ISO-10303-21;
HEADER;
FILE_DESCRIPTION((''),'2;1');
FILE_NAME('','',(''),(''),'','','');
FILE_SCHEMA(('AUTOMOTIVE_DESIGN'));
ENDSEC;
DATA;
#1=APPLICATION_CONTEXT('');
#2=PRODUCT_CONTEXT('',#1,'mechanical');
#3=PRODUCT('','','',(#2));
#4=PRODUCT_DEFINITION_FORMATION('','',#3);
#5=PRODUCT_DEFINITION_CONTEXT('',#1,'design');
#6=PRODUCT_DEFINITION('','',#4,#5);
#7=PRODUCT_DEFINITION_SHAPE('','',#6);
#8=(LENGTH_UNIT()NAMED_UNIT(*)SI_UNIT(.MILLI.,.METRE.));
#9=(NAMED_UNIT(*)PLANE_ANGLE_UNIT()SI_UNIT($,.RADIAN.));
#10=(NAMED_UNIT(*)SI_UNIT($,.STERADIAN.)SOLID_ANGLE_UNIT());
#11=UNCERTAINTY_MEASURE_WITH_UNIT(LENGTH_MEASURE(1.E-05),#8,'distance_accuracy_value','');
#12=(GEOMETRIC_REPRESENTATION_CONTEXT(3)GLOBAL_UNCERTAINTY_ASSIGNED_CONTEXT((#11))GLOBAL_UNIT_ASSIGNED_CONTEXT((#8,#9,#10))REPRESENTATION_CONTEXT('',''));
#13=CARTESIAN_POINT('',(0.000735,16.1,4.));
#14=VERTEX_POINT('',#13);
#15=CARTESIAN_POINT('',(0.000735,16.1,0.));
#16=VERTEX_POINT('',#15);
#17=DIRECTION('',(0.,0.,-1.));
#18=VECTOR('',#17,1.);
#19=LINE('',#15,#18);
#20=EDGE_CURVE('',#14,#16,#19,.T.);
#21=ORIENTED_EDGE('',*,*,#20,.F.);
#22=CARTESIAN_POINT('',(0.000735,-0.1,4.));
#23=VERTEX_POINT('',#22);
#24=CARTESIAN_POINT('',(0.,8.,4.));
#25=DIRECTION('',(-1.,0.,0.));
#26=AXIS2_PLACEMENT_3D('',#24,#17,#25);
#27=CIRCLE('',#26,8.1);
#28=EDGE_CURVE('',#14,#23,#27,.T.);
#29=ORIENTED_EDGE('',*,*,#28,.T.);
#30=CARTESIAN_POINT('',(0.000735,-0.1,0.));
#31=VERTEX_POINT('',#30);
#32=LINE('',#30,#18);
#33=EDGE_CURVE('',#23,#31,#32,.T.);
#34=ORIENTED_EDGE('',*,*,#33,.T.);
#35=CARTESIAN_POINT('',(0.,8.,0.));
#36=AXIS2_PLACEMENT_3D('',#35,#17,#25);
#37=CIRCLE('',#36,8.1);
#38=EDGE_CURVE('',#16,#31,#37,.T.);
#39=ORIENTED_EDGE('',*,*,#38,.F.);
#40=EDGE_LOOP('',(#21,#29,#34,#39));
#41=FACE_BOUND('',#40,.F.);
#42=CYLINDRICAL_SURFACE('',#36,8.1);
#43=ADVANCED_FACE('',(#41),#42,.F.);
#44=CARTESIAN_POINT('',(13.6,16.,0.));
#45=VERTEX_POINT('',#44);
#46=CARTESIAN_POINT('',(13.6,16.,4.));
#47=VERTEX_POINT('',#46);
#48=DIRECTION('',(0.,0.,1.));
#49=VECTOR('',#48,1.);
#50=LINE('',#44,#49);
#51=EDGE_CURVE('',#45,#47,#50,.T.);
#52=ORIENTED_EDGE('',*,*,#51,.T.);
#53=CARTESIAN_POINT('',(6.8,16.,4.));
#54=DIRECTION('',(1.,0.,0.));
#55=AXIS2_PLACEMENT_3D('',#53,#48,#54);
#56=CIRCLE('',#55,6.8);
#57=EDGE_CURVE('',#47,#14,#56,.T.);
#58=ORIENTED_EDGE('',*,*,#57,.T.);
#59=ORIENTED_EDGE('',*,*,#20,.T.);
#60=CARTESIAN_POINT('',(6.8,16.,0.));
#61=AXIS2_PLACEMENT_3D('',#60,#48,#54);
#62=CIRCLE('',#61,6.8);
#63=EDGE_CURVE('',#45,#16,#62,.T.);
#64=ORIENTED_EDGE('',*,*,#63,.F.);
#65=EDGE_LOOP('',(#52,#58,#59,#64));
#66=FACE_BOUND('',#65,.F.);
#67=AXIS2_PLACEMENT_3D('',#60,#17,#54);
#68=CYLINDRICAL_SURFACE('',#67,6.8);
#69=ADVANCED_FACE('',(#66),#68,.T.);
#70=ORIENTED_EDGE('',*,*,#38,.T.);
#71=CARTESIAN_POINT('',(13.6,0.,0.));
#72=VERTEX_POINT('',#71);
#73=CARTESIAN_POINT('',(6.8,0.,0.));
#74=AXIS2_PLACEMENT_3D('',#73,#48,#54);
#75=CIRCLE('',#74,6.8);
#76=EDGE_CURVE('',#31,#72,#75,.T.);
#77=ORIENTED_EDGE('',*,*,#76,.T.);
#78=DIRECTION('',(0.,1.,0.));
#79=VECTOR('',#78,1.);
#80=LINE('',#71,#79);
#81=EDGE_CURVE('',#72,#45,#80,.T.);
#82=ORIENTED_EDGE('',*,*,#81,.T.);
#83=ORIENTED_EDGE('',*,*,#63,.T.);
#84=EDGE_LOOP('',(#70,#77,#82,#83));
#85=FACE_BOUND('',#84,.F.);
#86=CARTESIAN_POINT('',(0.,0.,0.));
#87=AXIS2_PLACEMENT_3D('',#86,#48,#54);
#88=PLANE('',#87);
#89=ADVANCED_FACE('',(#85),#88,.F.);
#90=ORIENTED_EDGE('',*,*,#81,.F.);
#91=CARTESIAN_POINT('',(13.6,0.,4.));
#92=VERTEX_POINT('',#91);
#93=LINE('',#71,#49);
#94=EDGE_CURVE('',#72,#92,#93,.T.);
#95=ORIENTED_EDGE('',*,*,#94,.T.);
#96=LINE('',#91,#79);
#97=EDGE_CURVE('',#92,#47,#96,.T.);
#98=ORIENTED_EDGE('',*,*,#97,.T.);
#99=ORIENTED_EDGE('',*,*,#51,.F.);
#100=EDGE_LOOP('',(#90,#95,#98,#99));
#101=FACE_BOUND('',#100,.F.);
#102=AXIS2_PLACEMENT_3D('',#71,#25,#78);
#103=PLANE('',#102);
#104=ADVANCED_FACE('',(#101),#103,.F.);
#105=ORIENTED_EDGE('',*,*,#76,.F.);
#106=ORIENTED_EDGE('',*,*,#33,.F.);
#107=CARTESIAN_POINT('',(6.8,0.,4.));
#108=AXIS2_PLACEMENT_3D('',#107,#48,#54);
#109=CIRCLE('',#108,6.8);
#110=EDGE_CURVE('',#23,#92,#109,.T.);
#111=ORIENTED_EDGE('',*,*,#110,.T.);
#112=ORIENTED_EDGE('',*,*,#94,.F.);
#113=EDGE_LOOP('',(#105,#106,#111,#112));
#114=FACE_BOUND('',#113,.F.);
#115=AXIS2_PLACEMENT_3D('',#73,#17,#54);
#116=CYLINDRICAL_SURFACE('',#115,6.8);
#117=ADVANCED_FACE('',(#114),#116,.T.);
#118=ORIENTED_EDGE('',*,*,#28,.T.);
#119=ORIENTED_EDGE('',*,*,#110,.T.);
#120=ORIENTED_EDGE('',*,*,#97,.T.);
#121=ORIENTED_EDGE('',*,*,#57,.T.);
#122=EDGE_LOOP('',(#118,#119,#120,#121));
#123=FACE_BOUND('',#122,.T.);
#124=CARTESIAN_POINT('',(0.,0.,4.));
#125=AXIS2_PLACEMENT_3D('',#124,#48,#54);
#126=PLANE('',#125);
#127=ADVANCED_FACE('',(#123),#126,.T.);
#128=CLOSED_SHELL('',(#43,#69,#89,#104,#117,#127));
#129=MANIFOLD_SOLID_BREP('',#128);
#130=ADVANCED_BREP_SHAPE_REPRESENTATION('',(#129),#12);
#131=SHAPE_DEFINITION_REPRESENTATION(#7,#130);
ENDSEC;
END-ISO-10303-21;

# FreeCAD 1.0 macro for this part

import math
import FreeCAD as App
import Part
import Sketcher

V = App.Vector
Q = App.Units.Quantity

doc = App.newDocument("Part")
params = doc.addObject("Spreadsheet::Sheet", "Params")
for row, (alias, value) in enumerate([
    ("sketch1_radius", "6.8 mm"),
    ("sketch1_height", "16 mm"),
    ("pad1_length", "4 mm"),
    ("sketch2_diameter", "16.2 mm"),
], start=1):
    params.set(f"A{row}", alias)
    params.set(f"B{row}", "=" + value)
    params.setAlias(f"B{row}", alias)

body = doc.addObject("PartDesign::Body", "Body")

# Sketch on XY plane
sketch1 = body.newObject("Sketcher::SketchObject", "Sketch")
sketch1.AttachmentSupport = (doc.getObject("XY_Plane"), [""])
sketch1.MapMode = "FlatFace"
sketch1.addGeometry([
    Part.LineSegment(V(0, 16, 0), V(0, 0, 0)),
    Part.ArcOfCircle(Part.Circle(V(7, 0, 0), V(0, 0, 1), 7), math.radians(180), math.radians(360)),
    Part.LineSegment(V(14, 0, 0), V(14, 16, 0)),
    Part.ArcOfCircle(Part.Circle(V(7, 16, 0), V(0, 0, 1), 7), math.radians(0), math.radians(180)),
], False)
sketch1.addConstraint([
    Sketcher.Constraint("Tangent", 0, 2, 1, 1),
    Sketcher.Constraint("Tangent", 1, 2, 2, 1),
    Sketcher.Constraint("Tangent", 2, 2, 3, 1),
    Sketcher.Constraint("Tangent", 3, 2, 0, 1),
    Sketcher.Constraint("Vertical", 0),
    Sketcher.Constraint("Vertical", 2),
    Sketcher.Constraint("Coincident", 0, 2, -1, 1),
    Sketcher.Constraint("Radius", 1, Q("6.8 mm")),
    Sketcher.Constraint("DistanceY", 0, 2, 0, 1, Q("16 mm")),
])
sketch1.setExpression("Constraints[7]", "Params.sketch1_radius")
sketch1.setExpression("Constraints[8]", "Params.sketch1_height")
pad1 = body.newObject("PartDesign::Pad", "Pad")
pad1.Profile = sketch1
pad1.setExpression("Length", "Params.pad1_length")

# Sketch on XY plane
sketch2 = body.newObject("Sketcher::SketchObject", "Sketch001")
sketch2.AttachmentSupport = (doc.getObject("XY_Plane"), [""])
sketch2.MapMode = "FlatFace"
sketch2.addGeometry(Part.Circle(V(0, 8, 0), V(0, 0, 1), 8), False)
sketch2.addConstraint([
    Sketcher.Constraint("PointOnObject", 0, 3, -2),
    Sketcher.Constraint("Diameter", 0, Q("16.2 mm")),
    Sketcher.Constraint("DistanceY", -1, 1, 0, 3, Q("8 mm")),
])
sketch2.setExpression("Constraints[1]", "Params.sketch2_diameter")
pocket1 = body.newObject("PartDesign::Pocket", "Pocket")
pocket1.Profile = sketch2
pocket1.Type = "ThroughAll"
pocket1.Midplane = True

doc.recompute()
